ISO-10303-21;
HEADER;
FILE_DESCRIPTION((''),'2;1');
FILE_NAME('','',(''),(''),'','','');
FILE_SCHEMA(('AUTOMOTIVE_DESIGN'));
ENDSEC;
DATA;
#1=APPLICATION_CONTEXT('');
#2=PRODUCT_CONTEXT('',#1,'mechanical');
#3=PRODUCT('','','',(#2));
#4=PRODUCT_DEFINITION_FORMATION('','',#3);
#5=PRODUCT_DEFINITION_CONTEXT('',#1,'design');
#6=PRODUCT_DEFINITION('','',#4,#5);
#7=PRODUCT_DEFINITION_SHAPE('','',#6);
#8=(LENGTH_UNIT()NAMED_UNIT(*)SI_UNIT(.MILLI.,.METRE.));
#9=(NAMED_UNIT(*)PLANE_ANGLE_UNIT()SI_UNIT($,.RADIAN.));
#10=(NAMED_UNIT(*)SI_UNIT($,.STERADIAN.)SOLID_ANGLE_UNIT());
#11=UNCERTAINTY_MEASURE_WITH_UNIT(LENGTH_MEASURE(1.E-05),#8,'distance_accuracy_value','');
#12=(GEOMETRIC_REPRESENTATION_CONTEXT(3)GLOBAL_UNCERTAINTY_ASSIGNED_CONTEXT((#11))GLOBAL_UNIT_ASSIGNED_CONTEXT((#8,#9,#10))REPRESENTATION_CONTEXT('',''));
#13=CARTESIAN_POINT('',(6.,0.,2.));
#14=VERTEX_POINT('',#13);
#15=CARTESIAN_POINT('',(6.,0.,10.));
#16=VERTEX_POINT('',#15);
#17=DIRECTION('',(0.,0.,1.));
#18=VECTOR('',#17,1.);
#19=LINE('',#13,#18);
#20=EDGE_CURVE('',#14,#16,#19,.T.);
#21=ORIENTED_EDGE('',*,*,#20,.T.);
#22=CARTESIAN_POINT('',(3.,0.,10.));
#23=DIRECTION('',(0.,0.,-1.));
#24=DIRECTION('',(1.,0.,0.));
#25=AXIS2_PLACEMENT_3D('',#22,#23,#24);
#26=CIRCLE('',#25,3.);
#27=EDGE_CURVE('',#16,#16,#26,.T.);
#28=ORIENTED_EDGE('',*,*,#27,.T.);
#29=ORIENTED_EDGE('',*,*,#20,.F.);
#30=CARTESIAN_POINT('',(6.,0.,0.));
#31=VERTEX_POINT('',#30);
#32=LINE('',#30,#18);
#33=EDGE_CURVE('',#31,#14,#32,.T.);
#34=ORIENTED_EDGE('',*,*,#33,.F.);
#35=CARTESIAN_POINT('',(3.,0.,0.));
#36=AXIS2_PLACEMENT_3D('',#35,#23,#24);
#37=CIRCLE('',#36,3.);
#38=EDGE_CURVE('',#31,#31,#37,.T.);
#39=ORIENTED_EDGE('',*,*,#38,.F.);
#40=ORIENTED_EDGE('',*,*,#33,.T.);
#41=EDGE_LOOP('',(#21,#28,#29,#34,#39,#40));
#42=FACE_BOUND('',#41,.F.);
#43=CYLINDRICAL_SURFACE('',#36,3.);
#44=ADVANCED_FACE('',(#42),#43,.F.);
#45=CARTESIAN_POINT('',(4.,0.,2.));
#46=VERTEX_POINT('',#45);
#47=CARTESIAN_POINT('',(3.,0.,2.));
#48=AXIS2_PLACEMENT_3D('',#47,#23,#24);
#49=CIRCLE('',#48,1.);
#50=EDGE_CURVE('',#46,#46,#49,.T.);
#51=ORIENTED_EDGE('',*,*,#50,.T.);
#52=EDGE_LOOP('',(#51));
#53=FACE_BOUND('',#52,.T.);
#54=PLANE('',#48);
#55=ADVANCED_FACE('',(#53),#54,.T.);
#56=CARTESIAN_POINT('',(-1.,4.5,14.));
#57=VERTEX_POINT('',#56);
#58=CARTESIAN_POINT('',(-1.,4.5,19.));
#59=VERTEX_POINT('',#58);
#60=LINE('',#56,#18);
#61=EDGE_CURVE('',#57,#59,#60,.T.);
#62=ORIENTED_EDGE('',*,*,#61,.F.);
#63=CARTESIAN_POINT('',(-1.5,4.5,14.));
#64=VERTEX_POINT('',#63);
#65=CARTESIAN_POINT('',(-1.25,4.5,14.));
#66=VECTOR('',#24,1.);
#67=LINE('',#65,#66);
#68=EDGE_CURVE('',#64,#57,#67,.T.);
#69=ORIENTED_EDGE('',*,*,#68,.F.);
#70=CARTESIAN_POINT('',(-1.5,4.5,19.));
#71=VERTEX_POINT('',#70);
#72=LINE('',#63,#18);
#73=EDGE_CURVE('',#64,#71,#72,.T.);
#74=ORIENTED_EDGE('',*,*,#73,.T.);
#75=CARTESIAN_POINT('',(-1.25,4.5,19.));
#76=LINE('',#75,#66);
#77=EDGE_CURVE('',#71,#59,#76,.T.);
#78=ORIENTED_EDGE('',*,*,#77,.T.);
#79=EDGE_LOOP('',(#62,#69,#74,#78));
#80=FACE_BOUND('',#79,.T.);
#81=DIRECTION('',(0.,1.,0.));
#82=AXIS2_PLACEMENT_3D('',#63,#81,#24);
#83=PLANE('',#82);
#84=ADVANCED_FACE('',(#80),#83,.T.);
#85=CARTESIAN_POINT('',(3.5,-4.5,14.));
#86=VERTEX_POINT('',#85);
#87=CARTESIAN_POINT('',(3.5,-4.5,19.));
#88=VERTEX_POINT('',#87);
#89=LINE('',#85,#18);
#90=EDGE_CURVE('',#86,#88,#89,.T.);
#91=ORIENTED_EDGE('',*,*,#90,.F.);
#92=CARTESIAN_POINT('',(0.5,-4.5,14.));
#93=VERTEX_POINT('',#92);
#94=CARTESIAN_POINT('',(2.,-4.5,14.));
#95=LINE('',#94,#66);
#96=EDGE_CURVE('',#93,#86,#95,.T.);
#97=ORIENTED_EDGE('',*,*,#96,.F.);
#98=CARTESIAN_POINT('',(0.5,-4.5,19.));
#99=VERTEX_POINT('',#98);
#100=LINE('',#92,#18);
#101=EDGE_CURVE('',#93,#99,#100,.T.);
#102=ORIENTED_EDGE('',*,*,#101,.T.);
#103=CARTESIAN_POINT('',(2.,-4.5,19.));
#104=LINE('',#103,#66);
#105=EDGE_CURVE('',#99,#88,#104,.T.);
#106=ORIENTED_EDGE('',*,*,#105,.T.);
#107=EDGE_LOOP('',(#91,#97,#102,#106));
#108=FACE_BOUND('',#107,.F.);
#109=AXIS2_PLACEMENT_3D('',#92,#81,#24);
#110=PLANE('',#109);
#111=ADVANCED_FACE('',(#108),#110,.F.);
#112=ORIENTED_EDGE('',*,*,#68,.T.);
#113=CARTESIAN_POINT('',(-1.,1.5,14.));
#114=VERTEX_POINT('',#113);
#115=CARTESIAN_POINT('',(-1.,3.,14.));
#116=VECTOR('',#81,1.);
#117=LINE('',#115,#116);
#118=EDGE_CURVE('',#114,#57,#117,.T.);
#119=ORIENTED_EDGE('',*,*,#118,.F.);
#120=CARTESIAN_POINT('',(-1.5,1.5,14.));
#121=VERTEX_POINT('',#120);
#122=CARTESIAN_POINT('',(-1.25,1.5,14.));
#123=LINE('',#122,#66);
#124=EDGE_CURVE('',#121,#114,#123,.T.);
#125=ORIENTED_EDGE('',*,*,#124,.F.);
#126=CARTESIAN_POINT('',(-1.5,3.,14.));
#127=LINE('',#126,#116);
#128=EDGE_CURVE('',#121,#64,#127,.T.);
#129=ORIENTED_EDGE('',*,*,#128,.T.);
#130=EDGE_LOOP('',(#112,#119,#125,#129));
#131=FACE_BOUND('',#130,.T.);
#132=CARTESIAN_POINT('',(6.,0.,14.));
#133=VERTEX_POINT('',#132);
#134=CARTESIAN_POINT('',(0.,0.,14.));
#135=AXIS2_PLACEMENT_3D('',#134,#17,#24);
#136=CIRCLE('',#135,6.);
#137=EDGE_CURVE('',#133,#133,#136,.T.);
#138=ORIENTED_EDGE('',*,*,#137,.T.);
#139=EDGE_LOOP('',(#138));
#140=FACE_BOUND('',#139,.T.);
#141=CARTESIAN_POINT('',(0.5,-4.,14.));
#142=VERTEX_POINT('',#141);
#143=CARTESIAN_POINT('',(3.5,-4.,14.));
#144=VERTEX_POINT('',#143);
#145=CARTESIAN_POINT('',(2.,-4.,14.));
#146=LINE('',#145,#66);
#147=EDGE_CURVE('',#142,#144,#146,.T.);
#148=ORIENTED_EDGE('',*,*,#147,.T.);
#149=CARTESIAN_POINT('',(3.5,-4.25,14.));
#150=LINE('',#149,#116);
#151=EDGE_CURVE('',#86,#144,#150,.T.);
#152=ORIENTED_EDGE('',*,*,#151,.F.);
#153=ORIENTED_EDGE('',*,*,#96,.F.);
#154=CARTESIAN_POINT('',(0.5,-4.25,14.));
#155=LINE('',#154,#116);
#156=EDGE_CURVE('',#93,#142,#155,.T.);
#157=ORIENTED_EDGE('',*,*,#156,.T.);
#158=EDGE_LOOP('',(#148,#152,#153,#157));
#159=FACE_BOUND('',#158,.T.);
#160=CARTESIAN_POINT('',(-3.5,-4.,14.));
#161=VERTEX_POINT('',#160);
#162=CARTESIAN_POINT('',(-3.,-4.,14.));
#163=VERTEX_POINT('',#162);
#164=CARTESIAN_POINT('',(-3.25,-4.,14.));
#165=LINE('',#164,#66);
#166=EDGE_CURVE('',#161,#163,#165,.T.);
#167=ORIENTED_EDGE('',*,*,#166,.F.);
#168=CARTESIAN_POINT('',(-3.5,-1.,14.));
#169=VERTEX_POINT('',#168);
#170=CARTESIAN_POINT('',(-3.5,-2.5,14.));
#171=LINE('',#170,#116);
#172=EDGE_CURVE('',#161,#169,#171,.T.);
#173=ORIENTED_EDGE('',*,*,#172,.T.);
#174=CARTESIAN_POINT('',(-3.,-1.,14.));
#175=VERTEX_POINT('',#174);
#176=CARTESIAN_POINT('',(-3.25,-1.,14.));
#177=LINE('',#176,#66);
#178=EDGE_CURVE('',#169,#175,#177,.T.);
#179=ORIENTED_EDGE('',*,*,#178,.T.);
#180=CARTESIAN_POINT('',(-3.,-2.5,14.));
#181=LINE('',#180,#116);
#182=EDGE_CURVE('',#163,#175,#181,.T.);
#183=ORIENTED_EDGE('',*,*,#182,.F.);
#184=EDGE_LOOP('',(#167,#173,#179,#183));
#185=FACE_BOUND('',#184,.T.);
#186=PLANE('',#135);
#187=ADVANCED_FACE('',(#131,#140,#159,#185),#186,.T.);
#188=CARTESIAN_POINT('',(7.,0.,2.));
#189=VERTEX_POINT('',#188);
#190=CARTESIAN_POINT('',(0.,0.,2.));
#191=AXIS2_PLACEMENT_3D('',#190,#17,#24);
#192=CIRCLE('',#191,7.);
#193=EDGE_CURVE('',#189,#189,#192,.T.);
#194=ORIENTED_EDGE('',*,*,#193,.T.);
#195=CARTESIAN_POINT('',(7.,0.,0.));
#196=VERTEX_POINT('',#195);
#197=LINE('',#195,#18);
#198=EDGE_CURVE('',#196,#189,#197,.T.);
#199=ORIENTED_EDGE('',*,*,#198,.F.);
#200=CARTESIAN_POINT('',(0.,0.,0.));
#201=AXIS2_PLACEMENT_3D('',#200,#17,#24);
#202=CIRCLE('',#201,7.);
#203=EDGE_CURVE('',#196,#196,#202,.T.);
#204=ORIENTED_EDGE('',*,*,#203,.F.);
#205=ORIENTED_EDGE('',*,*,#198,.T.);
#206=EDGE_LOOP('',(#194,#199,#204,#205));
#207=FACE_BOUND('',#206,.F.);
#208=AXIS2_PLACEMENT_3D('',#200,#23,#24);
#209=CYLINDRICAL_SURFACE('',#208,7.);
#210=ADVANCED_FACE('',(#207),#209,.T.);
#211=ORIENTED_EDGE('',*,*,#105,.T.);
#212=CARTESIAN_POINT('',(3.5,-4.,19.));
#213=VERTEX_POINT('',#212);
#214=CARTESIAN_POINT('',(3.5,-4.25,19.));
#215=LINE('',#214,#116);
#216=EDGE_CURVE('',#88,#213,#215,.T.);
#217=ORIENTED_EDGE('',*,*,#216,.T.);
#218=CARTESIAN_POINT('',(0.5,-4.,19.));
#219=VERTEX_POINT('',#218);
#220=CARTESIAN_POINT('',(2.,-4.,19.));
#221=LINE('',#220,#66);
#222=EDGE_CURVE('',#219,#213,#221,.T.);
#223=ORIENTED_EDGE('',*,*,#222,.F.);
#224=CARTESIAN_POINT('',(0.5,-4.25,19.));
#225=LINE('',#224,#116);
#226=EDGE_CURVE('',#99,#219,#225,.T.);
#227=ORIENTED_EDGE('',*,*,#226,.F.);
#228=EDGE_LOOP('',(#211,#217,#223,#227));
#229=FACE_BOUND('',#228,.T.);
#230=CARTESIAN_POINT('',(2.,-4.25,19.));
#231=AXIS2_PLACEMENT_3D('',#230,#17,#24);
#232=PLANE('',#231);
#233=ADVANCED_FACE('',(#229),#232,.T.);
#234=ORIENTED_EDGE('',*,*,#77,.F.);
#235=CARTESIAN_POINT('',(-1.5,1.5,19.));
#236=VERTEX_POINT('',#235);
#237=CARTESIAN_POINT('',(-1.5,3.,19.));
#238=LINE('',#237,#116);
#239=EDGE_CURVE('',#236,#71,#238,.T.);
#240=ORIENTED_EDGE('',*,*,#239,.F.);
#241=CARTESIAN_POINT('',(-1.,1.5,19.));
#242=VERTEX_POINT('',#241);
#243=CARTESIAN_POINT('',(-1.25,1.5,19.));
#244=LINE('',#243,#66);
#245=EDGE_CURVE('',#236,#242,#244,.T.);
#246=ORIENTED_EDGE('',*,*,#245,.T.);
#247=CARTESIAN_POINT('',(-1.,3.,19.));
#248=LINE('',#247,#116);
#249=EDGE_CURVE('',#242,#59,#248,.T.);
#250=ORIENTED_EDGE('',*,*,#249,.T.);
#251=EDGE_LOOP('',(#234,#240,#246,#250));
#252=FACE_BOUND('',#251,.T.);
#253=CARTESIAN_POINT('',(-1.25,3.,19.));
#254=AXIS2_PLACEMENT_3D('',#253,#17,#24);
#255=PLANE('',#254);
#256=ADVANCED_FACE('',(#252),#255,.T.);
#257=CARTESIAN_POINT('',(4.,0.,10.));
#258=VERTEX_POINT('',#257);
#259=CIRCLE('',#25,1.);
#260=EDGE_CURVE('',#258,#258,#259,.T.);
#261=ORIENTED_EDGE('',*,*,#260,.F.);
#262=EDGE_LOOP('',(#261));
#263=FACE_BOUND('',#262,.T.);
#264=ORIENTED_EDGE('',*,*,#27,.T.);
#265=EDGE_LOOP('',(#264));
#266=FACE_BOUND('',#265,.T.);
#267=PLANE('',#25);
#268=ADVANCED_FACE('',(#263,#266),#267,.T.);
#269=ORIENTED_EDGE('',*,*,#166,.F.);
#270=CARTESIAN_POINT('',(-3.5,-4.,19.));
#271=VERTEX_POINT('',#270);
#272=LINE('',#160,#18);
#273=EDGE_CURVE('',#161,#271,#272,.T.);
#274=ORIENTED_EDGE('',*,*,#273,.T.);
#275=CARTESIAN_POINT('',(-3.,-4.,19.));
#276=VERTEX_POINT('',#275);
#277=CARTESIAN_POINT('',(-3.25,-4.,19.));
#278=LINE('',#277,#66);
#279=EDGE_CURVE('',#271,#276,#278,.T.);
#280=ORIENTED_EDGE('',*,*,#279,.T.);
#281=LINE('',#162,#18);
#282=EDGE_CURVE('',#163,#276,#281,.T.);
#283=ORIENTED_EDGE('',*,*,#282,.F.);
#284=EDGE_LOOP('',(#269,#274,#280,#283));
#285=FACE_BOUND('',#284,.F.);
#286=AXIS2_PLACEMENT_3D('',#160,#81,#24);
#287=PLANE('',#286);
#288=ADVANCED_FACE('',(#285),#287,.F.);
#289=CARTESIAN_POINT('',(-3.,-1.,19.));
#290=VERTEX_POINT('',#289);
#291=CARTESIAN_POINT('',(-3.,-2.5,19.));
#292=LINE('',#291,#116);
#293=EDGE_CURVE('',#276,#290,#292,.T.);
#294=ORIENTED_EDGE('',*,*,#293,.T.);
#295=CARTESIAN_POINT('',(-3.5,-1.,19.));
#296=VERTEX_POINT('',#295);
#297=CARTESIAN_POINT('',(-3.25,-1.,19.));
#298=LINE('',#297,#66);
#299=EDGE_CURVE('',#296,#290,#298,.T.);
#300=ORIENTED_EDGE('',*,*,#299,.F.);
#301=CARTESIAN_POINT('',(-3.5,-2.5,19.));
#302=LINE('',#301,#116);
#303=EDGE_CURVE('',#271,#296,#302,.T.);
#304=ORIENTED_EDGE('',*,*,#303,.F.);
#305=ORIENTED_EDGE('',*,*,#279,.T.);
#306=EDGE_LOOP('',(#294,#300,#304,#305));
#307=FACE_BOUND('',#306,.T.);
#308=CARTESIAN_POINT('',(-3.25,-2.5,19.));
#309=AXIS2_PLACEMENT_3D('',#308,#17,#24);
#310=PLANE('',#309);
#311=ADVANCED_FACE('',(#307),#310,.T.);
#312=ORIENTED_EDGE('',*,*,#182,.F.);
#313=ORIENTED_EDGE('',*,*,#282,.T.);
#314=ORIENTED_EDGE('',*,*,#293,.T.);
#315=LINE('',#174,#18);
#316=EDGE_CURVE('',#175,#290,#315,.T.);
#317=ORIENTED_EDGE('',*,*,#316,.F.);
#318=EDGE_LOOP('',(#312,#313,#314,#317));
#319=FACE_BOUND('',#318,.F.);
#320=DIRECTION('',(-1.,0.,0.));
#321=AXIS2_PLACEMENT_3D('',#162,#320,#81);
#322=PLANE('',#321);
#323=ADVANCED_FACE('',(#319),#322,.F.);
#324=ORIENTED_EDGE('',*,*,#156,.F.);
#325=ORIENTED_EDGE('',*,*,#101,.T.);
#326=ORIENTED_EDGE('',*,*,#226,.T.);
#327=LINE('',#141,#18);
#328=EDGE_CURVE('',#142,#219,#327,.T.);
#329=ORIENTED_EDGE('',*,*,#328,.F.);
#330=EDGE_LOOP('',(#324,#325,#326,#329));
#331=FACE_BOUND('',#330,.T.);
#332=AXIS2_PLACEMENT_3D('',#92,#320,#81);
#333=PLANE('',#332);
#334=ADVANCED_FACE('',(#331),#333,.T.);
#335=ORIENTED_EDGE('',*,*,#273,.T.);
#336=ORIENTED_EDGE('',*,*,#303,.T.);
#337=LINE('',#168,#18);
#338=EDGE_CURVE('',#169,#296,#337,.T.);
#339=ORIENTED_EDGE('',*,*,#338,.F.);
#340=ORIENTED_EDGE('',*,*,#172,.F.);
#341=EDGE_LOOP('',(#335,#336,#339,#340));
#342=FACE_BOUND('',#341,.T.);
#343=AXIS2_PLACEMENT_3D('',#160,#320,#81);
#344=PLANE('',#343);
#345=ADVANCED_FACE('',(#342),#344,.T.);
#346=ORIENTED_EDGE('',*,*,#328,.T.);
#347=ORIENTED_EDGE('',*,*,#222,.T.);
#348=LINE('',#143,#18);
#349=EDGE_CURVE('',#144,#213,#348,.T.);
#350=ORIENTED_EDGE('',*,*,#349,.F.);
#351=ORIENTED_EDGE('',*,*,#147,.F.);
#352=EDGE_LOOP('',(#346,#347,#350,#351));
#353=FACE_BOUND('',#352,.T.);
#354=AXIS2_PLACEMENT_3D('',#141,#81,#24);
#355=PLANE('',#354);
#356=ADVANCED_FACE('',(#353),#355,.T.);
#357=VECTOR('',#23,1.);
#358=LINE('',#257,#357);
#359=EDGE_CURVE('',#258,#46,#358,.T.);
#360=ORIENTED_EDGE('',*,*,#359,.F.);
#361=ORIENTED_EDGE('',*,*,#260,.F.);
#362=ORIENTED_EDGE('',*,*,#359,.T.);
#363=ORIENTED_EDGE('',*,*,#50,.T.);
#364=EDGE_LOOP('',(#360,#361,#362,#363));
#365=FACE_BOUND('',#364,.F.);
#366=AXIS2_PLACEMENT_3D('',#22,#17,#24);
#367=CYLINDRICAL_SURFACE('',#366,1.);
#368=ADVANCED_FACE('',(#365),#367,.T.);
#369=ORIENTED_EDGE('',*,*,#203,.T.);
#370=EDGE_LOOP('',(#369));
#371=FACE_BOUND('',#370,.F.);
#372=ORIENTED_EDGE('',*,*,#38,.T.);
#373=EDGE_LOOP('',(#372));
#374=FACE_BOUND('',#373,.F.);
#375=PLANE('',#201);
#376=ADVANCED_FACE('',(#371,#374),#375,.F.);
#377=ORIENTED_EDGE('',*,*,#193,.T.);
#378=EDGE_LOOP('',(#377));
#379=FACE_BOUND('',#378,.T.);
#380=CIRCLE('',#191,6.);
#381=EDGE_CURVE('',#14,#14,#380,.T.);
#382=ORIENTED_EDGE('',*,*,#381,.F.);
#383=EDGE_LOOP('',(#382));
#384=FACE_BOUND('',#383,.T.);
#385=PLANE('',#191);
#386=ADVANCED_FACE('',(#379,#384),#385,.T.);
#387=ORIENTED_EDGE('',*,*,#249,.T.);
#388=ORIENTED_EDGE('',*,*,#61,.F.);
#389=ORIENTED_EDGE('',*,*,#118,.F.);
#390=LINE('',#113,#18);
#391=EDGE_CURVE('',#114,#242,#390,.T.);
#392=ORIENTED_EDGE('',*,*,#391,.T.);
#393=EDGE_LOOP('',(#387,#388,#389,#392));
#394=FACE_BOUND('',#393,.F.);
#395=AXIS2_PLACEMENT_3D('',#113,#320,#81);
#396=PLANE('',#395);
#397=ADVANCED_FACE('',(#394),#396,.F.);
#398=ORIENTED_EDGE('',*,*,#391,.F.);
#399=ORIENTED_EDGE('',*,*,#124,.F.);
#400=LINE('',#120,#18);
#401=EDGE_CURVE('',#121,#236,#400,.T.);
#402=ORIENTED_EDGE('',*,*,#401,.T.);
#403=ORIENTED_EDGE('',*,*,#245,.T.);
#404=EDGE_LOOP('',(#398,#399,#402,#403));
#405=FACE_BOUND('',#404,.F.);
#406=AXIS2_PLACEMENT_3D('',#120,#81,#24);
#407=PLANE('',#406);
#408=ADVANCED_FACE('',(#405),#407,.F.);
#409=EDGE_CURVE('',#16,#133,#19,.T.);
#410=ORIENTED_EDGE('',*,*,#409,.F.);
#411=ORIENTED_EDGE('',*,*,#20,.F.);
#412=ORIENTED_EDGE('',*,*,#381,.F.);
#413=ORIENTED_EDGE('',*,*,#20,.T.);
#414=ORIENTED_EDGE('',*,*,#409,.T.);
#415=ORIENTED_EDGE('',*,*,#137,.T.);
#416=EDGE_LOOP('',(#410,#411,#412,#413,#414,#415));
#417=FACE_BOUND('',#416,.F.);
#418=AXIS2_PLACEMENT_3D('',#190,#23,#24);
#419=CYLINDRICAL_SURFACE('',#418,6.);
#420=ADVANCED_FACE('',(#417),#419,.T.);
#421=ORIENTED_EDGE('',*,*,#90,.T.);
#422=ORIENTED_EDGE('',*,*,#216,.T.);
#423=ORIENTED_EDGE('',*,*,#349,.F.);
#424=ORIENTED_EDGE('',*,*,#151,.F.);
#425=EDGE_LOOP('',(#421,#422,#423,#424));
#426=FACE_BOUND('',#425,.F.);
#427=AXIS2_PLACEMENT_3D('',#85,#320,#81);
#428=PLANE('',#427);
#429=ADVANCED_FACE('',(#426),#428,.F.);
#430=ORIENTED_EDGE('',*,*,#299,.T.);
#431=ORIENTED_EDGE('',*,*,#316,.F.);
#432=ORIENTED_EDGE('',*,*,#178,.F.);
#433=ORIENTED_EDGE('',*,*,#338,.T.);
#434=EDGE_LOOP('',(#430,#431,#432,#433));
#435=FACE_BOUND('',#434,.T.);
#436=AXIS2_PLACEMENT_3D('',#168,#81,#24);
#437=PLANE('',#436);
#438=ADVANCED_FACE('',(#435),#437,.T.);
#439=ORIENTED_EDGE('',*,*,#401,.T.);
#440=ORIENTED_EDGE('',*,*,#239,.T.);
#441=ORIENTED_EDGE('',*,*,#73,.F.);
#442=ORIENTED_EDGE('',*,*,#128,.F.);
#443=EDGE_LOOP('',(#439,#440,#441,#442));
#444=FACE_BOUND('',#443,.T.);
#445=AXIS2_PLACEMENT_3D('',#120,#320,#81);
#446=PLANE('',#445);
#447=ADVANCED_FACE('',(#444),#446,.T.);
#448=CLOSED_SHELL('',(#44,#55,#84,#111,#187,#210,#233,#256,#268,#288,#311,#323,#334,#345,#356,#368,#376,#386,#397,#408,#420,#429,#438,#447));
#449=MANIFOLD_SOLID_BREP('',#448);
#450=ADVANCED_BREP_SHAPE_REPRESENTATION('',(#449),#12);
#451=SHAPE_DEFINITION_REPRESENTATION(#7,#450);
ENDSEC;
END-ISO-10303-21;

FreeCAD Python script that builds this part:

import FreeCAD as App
import Part
import Sketcher

V = App.Vector
Q = App.Units.Quantity

doc = App.newDocument("Part")
body = doc.addObject("PartDesign::Body", "Body")

# Sketch on XY plane
sketch1 = body.newObject("Sketcher::SketchObject", "Sketch")
sketch1.AttachmentSupport = (doc.getObject("XY_Plane"), [""])
sketch1.MapMode = "FlatFace"
sketch1.addGeometry(Part.Circle(V(0, 0, 0), V(0, 0, 1), 7), False)
sketch1.addConstraint(Sketcher.Constraint("Coincident", 0, 3, -1, 1))
sketch1.addConstraint(Sketcher.Constraint("Diameter", 0, Q("14 mm")))
pad1 = body.newObject("PartDesign::Pad", "Pad")
pad1.Profile = sketch1
pad1.Length = 2

# Sketch on XY plane
sketch2 = body.newObject("Sketcher::SketchObject", "Sketch001")
sketch2.AttachmentSupport = (doc.getObject("XY_Plane"), [""])
sketch2.MapMode = "FlatFace"
sketch2.AttachmentOffset = App.Placement(V(0, 0, 2), App.Rotation())
sketch2.addGeometry(Part.Circle(V(0, 0, 0), V(0, 0, 1), 6), False)
sketch2.addConstraint(Sketcher.Constraint("Coincident", 0, 3, -1, 1))
sketch2.addConstraint(Sketcher.Constraint("Diameter", 0, Q("12 mm")))
pad2 = body.newObject("PartDesign::Pad", "Pad001")
pad2.Profile = sketch2
pad2.Length = 12

# Sketch on XY plane
sketch3 = body.newObject("Sketcher::SketchObject", "Sketch002")
sketch3.AttachmentSupport = (doc.getObject("XY_Plane"), [""])
sketch3.MapMode = "FlatFace"
sketch3.AttachmentOffset = App.Placement(V(0, 0, 14), App.Rotation())
sketch3.addGeometry(Part.LineSegment(V(-1.5, 4.5, 0), V(-1.5, 1.5, 0)), False)
sketch3.addGeometry(Part.LineSegment(V(-1.5, 1.5, 0), V(-1, 1.5, 0)), False)
sketch3.addGeometry(Part.LineSegment(V(-1, 1.5, 0), V(-1, 4.5, 0)), False)
sketch3.addGeometry(Part.LineSegment(V(-1, 4.5, 0), V(-1.5, 4.5, 0)), False)
sketch3.addGeometry(Part.LineSegment(V(-3.5, -1, 0), V(-3.5, -4, 0)), False)
sketch3.addGeometry(Part.LineSegment(V(-3.5, -4, 0), V(-3, -4, 0)), False)
sketch3.addGeometry(Part.LineSegment(V(-3, -4, 0), V(-3, -1, 0)), False)
sketch3.addGeometry(Part.LineSegment(V(-3, -1, 0), V(-3.5, -1, 0)), False)
sketch3.addGeometry(Part.LineSegment(V(0.5, -4, 0), V(0.5, -4.5, 0)), False)
sketch3.addGeometry(Part.LineSegment(V(0.5, -4.5, 0), V(3.5, -4.5, 0)), False)
sketch3.addGeometry(Part.LineSegment(V(3.5, -4.5, 0), V(3.5, -4, 0)), False)
sketch3.addGeometry(Part.LineSegment(V(3.5, -4, 0), V(0.5, -4, 0)), False)
sketch3.addConstraint(Sketcher.Constraint("Coincident", 0, 2, 1, 1))
sketch3.addConstraint(Sketcher.Constraint("Coincident", 1, 2, 2, 1))
sketch3.addConstraint(Sketcher.Constraint("Coincident", 2, 2, 3, 1))
sketch3.addConstraint(Sketcher.Constraint("Coincident", 3, 2, 0, 1))
sketch3.addConstraint(Sketcher.Constraint("Coincident", 4, 2, 5, 1))
sketch3.addConstraint(Sketcher.Constraint("Coincident", 5, 2, 6, 1))
sketch3.addConstraint(Sketcher.Constraint("Coincident", 6, 2, 7, 1))
sketch3.addConstraint(Sketcher.Constraint("Coincident", 7, 2, 4, 1))
sketch3.addConstraint(Sketcher.Constraint("Coincident", 8, 2, 9, 1))
sketch3.addConstraint(Sketcher.Constraint("Coincident", 9, 2, 10, 1))
sketch3.addConstraint(Sketcher.Constraint("Coincident", 10, 2, 11, 1))
sketch3.addConstraint(Sketcher.Constraint("Coincident", 11, 2, 8, 1))
sketch3.addConstraint(Sketcher.Constraint("Vertical", 0))
sketch3.addConstraint(Sketcher.Constraint("Horizontal", 1))
sketch3.addConstraint(Sketcher.Constraint("Vertical", 2))
sketch3.addConstraint(Sketcher.Constraint("Horizontal", 3))
sketch3.addConstraint(Sketcher.Constraint("Vertical", 4))
sketch3.addConstraint(Sketcher.Constraint("Horizontal", 5))
sketch3.addConstraint(Sketcher.Constraint("Vertical", 6))
sketch3.addConstraint(Sketcher.Constraint("Horizontal", 7))
sketch3.addConstraint(Sketcher.Constraint("Vertical", 8))
sketch3.addConstraint(Sketcher.Constraint("Horizontal", 9))
sketch3.addConstraint(Sketcher.Constraint("Vertical", 10))
sketch3.addConstraint(Sketcher.Constraint("Horizontal", 11))
sketch3.addConstraint(Sketcher.Constraint("Symmetric", 4, 2, 10, 2, -2))
sketch3.addConstraint(Sketcher.Constraint("Equal", 3, 5))
sketch3.addConstraint(Sketcher.Constraint("Equal", 11, 0))
sketch3.addConstraint(Sketcher.Constraint("Equal", 2, 4))
sketch3.addConstraint(Sketcher.Constraint("Equal", 7, 8))
sketch3.addConstraint(Sketcher.Constraint("DistanceX", 9, 1, 9, 2, Q("3 mm")))
sketch3.addConstraint(Sketcher.Constraint("DistanceX", 1, 1, 1, 2, Q("0.5 mm")))
sketch3.addConstraint(Sketcher.Constraint("DistanceX", 1, 2, -1, 1, Q("1 mm")))
sketch3.addConstraint(Sketcher.Constraint("DistanceY", 4, 2, -1, 1, Q("4 mm")))
sketch3.addConstraint(Sketcher.Constraint("DistanceX", 5, 2, -1, 1, Q("3 mm")))
sketch3.addConstraint(Sketcher.Constraint("DistanceY", 8, 2, 1, 2, Q("6 mm")))
pad3 = body.newObject("PartDesign::Pad", "Pad002")
pad3.Profile = sketch3
pad3.Length = 5

# Sketch on XY plane
sketch4 = body.newObject("Sketcher::SketchObject", "Sketch003")
sketch4.AttachmentSupport = (doc.getObject("XY_Plane"), [""])
sketch4.MapMode = "FlatFace"
sketch4.addGeometry(Part.Circle(V(3, 0, 0), V(0, 0, 1), 3), False)
sketch4.addConstraint(Sketcher.Constraint("PointOnObject", 0, 3, -1))
sketch4.addConstraint(Sketcher.Constraint("Diameter", 0, Q("6 mm")))
sketch4.addConstraint(Sketcher.Constraint("DistanceX", -1, 1, 0, 3, Q("3 mm")))
pocket1 = body.newObject("PartDesign::Pocket", "Pocket")
pocket1.Profile = sketch4
pocket1.Length = 10
pocket1.Reversed = True

# Sketch on XY plane
sketch5 = body.newObject("Sketcher::SketchObject", "Sketch004")
sketch5.AttachmentSupport = (doc.getObject("XY_Plane"), [""])
sketch5.MapMode = "FlatFace"
sketch5.AttachmentOffset = App.Placement(V(0, 0, 10), App.Rotation())
sketch5.addGeometry(Part.Circle(V(3, 0, 0), V(0, 0, 1), 1), False)
sketch5.addConstraint(Sketcher.Constraint("PointOnObject", 0, 3, -1))
sketch5.addConstraint(Sketcher.Constraint("Diameter", 0, Q("2 mm")))
sketch5.addConstraint(Sketcher.Constraint("DistanceX", -1, 1, 0, 3, Q("3 mm")))
pad4 = body.newObject("PartDesign::Pad", "Pad003")
pad4.Profile = sketch5
pad4.Length = 8
pad4.Reversed = True

doc.recompute()
